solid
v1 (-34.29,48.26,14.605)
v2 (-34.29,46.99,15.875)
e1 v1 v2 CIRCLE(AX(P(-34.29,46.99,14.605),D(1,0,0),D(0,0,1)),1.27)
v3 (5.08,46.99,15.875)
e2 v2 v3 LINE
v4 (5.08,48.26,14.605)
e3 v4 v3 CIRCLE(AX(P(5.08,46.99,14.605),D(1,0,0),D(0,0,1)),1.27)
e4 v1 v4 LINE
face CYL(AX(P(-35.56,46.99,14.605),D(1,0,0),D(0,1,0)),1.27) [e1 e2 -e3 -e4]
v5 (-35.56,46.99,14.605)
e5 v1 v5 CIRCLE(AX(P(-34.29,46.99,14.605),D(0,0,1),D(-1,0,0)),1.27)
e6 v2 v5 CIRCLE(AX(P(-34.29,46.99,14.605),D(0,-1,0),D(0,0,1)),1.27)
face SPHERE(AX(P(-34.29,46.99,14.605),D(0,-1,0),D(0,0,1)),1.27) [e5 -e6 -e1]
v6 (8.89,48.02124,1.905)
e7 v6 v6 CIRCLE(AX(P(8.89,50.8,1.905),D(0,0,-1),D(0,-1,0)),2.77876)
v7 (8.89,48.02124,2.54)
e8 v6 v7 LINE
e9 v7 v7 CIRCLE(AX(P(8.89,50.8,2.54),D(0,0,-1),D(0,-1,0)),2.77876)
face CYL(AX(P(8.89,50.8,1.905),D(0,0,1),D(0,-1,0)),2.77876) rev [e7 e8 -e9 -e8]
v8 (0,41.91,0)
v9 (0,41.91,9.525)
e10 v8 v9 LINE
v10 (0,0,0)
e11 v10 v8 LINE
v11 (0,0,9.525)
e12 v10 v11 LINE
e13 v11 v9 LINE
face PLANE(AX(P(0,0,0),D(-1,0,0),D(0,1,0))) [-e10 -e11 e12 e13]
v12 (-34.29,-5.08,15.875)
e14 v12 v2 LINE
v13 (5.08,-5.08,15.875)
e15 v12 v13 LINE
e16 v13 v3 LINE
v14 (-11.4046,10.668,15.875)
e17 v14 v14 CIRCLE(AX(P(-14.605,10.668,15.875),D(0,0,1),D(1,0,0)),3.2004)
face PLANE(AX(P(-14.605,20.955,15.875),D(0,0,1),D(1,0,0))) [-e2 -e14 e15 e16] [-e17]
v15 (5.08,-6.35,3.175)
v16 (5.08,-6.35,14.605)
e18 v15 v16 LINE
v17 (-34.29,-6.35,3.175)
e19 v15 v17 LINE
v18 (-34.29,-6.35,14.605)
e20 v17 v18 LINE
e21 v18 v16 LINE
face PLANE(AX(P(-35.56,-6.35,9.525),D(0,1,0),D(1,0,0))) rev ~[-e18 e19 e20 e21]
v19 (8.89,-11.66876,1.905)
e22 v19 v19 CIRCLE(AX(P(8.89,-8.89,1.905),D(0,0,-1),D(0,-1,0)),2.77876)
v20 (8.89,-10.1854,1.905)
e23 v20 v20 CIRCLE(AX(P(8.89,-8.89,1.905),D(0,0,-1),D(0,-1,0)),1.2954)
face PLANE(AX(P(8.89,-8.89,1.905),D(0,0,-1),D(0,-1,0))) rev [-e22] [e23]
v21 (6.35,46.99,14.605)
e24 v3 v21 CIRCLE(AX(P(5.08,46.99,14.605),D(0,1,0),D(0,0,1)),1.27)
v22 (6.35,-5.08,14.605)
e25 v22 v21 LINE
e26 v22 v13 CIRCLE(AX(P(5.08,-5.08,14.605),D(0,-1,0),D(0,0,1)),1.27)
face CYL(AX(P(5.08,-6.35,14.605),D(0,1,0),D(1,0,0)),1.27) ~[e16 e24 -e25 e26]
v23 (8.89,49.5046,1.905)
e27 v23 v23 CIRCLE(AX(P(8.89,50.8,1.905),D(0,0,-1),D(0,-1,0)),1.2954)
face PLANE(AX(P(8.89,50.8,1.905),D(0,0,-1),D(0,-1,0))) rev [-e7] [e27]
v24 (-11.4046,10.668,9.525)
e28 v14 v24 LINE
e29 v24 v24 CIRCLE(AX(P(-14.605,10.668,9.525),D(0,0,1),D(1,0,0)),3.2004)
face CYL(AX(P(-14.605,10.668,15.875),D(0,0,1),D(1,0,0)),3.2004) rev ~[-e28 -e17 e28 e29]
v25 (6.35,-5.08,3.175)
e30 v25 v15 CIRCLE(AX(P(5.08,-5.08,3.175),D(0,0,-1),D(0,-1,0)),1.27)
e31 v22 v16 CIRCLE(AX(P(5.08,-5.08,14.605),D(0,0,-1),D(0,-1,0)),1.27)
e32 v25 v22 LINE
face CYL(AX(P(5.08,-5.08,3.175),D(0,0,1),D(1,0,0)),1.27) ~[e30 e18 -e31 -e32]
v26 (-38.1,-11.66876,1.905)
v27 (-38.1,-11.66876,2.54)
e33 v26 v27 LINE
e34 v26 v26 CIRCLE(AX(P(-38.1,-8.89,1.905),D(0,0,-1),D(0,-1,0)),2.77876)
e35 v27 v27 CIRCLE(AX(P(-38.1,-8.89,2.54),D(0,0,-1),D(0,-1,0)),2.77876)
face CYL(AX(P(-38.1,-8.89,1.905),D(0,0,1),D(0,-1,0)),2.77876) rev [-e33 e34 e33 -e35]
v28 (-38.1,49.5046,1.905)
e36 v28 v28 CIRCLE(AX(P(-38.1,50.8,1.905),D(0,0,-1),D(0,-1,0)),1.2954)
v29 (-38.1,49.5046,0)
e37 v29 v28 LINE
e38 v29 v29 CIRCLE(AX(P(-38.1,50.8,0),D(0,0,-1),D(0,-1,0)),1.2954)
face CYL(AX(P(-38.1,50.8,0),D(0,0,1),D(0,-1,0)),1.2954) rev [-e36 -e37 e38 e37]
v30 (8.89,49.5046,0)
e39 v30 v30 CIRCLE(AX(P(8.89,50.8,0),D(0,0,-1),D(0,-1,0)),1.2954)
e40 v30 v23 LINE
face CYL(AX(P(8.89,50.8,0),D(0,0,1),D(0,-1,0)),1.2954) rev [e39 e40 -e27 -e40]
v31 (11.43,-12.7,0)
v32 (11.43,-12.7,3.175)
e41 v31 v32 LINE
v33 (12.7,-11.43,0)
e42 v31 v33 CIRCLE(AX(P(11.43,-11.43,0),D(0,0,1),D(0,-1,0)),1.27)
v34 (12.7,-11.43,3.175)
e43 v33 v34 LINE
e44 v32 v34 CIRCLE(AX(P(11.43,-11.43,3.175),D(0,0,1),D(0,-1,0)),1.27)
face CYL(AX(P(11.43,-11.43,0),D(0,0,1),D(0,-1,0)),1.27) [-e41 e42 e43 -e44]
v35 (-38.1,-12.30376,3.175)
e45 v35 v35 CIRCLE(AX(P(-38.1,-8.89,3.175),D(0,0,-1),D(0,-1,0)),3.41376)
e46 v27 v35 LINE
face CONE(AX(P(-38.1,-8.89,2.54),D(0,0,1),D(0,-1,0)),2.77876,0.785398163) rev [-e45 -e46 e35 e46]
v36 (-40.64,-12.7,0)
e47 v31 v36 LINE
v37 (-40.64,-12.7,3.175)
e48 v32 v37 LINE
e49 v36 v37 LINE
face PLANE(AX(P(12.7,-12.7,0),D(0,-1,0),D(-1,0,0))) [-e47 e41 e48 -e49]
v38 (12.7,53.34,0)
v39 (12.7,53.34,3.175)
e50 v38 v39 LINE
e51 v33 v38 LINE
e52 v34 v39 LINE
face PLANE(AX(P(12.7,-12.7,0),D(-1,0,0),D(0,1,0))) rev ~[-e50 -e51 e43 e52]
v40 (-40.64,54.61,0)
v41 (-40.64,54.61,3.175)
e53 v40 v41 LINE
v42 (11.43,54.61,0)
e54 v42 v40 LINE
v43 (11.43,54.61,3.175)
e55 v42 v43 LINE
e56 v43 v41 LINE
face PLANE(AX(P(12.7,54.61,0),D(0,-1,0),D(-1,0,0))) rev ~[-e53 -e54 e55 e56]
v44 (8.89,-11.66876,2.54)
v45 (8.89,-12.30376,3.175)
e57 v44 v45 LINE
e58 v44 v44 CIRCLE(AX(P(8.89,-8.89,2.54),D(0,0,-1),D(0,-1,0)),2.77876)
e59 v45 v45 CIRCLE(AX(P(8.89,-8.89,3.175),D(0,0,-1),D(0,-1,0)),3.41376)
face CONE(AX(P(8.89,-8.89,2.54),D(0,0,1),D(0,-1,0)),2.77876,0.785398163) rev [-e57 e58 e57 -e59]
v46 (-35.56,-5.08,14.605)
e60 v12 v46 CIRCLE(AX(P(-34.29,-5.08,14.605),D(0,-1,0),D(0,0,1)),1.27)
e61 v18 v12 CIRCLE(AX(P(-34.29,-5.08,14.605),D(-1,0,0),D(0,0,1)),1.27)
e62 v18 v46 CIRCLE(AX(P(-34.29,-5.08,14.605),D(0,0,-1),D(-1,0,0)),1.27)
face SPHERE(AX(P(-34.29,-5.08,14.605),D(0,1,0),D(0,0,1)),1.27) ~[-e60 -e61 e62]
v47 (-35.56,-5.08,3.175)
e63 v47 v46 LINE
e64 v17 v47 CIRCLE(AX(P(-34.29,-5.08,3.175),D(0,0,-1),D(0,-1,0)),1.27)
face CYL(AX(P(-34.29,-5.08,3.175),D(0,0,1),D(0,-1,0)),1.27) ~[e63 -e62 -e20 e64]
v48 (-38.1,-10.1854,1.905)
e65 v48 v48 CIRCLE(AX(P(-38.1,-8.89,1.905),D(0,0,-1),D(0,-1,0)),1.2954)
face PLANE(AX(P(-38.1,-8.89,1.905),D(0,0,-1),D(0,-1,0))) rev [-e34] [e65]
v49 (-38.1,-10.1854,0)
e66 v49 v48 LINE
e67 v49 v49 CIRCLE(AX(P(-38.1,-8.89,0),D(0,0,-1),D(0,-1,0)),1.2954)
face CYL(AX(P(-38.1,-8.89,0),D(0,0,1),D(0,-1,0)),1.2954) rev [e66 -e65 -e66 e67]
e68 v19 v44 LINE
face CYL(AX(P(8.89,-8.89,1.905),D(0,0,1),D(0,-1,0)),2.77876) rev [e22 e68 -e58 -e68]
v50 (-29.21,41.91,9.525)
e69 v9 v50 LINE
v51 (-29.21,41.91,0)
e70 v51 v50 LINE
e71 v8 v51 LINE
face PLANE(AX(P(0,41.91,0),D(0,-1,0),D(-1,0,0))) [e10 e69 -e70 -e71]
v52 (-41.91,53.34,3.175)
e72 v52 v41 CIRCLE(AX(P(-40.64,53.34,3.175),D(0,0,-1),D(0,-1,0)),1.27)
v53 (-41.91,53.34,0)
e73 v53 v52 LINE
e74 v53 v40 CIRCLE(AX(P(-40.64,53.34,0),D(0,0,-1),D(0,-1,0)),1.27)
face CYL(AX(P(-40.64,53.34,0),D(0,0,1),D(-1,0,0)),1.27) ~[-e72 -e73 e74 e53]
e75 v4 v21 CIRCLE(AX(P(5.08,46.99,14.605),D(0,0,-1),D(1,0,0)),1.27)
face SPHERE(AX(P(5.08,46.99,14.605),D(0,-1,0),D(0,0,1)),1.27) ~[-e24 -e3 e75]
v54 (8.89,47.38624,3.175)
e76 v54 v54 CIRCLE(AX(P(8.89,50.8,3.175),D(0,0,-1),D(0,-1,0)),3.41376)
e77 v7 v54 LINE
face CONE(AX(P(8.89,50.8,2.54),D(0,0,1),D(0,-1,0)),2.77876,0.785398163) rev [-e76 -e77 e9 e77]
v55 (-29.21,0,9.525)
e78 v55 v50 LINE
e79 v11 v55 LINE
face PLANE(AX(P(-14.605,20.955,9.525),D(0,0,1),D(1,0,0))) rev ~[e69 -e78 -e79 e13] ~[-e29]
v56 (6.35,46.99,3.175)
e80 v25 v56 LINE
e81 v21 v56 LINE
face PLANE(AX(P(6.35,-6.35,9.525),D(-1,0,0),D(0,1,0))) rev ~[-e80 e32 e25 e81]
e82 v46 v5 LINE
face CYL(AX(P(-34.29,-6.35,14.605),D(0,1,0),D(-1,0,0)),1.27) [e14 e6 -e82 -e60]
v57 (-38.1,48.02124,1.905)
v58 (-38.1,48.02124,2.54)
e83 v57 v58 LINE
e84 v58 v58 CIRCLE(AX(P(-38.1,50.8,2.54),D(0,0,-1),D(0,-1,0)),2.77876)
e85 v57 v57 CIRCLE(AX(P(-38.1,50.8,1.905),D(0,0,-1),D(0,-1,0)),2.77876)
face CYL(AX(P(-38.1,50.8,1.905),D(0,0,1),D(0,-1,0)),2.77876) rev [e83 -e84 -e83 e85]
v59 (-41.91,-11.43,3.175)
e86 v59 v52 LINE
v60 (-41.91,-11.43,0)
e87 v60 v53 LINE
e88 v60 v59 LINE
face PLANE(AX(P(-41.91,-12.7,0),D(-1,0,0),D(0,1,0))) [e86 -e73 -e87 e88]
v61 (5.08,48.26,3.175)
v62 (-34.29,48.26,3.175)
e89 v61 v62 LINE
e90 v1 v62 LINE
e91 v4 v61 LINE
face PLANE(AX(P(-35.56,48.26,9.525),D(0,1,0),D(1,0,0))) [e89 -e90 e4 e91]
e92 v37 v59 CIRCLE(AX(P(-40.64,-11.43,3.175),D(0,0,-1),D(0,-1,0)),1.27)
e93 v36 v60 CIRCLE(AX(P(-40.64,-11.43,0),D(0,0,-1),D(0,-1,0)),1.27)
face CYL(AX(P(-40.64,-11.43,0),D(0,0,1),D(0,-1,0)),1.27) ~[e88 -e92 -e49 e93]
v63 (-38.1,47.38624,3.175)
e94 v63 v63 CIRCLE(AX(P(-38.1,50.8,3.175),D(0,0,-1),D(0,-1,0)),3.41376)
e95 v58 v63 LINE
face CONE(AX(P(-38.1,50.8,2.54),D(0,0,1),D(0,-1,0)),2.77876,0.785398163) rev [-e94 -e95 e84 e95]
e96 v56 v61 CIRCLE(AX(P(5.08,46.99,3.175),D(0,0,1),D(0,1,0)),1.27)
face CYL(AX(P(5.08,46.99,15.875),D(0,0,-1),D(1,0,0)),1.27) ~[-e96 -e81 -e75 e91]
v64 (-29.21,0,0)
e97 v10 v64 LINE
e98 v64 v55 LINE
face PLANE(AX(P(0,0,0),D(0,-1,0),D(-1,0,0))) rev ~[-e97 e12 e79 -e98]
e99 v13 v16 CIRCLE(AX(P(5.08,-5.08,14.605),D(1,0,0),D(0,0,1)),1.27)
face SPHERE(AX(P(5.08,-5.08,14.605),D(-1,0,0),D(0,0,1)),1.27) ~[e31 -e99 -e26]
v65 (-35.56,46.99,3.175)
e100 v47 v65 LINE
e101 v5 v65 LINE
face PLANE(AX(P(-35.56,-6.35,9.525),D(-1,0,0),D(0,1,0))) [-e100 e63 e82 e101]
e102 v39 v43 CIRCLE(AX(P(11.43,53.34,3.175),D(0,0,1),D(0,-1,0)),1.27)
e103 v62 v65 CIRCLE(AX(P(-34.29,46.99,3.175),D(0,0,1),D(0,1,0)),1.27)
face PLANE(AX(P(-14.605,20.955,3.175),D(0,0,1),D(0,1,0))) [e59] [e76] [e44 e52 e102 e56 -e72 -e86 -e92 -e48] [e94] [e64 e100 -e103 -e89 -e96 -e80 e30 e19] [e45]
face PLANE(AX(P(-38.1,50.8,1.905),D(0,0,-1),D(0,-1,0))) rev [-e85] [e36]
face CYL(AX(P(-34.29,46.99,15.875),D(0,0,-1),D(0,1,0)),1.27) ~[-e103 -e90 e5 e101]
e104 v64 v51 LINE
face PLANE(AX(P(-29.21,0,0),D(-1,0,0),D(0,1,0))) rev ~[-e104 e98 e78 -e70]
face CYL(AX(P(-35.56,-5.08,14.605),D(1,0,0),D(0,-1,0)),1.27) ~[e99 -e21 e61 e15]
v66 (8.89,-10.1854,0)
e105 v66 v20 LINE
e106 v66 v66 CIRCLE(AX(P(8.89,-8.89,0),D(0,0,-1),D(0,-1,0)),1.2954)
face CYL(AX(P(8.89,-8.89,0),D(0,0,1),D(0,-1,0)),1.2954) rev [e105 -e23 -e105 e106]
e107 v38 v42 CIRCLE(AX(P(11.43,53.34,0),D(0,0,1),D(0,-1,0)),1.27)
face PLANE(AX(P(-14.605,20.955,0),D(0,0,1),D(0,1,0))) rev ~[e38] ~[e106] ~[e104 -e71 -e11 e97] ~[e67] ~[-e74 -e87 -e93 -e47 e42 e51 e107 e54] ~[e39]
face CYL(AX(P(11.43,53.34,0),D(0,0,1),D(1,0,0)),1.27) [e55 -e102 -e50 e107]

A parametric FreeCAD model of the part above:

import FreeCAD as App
import Part
import Sketcher
Q = App.Units.Quantity


def edges_at(feature, points):
    """Names of the edges that pass closest to the given points."""
    edges = feature.Shape.Edges
    near = lambda p: min(range(len(edges)), key=lambda i: edges[i].distToShape(Part.Vertex(*p))[0])
    return sorted({f"Edge{near(p) + 1}" for p in points})


def add_polygon(sketch, points):
    """Adds a closed chain of lines whose ends are joined by coincident constraints."""
    first, n = sketch.GeometryCount, len(points)
    for a, b in zip(points, points[1:] + points[:1]):
        sketch.addGeometry(Part.LineSegment(App.Vector(*a, 0), App.Vector(*b, 0)), False)
    for i in range(n):
        sketch.addConstraint(Sketcher.Constraint("Coincident", first + i, 2, first + (i + 1) % n, 1))

doc = App.newDocument("Part")
body = doc.addObject("PartDesign::Body", "Body")

# Sketch on XY plane
sketch1 = body.newObject("Sketcher::SketchObject", "Sketch")
sketch1.AttachmentSupport = (doc.getObject("XY_Plane"), [""])
sketch1.MapMode = "FlatFace"
add_polygon(sketch1, [(-36, -6), (6, -6), (6, 48), (-36, 48)])  # lines 0-3
add_polygon(sketch1, [(0, 42), (0, 0), (-29, 0), (-29, 42)])  # lines 4-7
sketch1.addConstraint([
    Sketcher.Constraint("Horizontal", 0),
    Sketcher.Constraint("Vertical", 1),
    Sketcher.Constraint("Horizontal", 2),
    Sketcher.Constraint("Vertical", 3),
    Sketcher.Constraint("Vertical", 4),
    Sketcher.Constraint("Horizontal", 5),
    Sketcher.Constraint("Vertical", 6),
    Sketcher.Constraint("Horizontal", 7),
    Sketcher.Constraint("Coincident", 4, 2, -1, 1),
    Sketcher.Constraint("Equal", 2, 4),
    Sketcher.Constraint("DistanceX", 0, 1, 0, 2, Q("1.65 in")),
    Sketcher.Constraint("DistanceX", 5, 2, 5, 1, Q("1.15 in")),
    Sketcher.Constraint("DistanceY", 1, 1, 1, 2, Q("2.15 in")),
    Sketcher.Constraint("DistanceY", -1, 1, 1, 2, Q("1.9 in")),
    Sketcher.Constraint("DistanceX", 2, 2, -1, 1, Q("1.4 in")),
])
pad1 = body.newObject("PartDesign::Pad", "Pad")
pad1.Profile = sketch1
pad1.Length = Q("0.375 in")

# Sketch on XY plane
sketch2 = body.newObject("Sketcher::SketchObject", "Sketch001")
sketch2.AttachmentSupport = (doc.getObject("XY_Plane"), [""])
sketch2.MapMode = "FlatFace"
sketch2.AttachmentOffset = App.Placement(App.Vector(0, 0, 0.375 * 25.4), App.Rotation())
add_polygon(sketch2, [(-36, 48), (-36, -6), (6, -6), (6, 48)])  # lines 0-3
sketch2.addConstraint([
    Sketcher.Constraint("Vertical", 0),
    Sketcher.Constraint("Horizontal", 1),
    Sketcher.Constraint("Vertical", 2),
    Sketcher.Constraint("Horizontal", 3),
    Sketcher.Constraint("DistanceX", 1, 1, 1, 2, Q("1.65 in")),
    Sketcher.Constraint("DistanceY", 0, 2, 0, 1, Q("2.15 in")),
    Sketcher.Constraint("DistanceX", 0, 2, -1, 1, Q("1.4 in")),
    Sketcher.Constraint("DistanceY", -1, 1, 2, 2, Q("1.9 in")),
])
pad2 = body.newObject("PartDesign::Pad", "Pad001")
pad2.Profile = sketch2
pad2.Length = Q("0.25 in")

# Sketch on XY plane
sketch3 = body.newObject("Sketcher::SketchObject", "Sketch002")
sketch3.AttachmentSupport = (doc.getObject("XY_Plane"), [""])
sketch3.MapMode = "FlatFace"
sketch3.AttachmentOffset = App.Placement(App.Vector(0, 0, 0.625 * 25.4), App.Rotation())
sketch3.addGeometry(Part.Circle(App.Vector(-14.6, 10.7, 0), App.Vector(0, 0, 1), 3.2), False)
sketch3.addConstraint([
    Sketcher.Constraint("Diameter", 0, Q("0.252 in")),
    Sketcher.Constraint("DistanceY", -1, 1, 0, 3, Q("0.42 in")),
    Sketcher.Constraint("DistanceX", 0, 3, -1, 1, Q("0.575 in")),
])
pocket1 = body.newObject("PartDesign::Pocket", "Pocket")
pocket1.Profile = sketch3
pocket1.Type = "ThroughAll"

# Sketch on XY plane
sketch4 = body.newObject("Sketcher::SketchObject", "Sketch003")
sketch4.AttachmentSupport = (doc.getObject("XY_Plane"), [""])
sketch4.MapMode = "FlatFace"
add_polygon(sketch4, [(-42, -13), (13, -13), (13, 55), (-42, 55)])  # lines 0-3
add_polygon(sketch4, [(6, 48), (6, -6), (-36, -6), (-36, 48)])  # lines 4-7
sketch4.addConstraint([
    Sketcher.Constraint("Horizontal", 0),
    Sketcher.Constraint("Vertical", 1),
    Sketcher.Constraint("Horizontal", 2),
    Sketcher.Constraint("Vertical", 3),
    Sketcher.Constraint("Vertical", 4),
    Sketcher.Constraint("Horizontal", 5),
    Sketcher.Constraint("Vertical", 6),
    Sketcher.Constraint("Horizontal", 7),
    Sketcher.Constraint("Equal", 2, 4),
    Sketcher.Constraint("DistanceX", 0, 1, 0, 2, Q("2.15 in")),
    Sketcher.Constraint("DistanceX", 5, 2, 5, 1, Q("1.65 in")),
    Sketcher.Constraint("DistanceY", 1, 1, 1, 2, Q("2.65 in")),
    Sketcher.Constraint("DistanceX", -1, 1, 0, 2, Q("0.5 in")),
    Sketcher.Constraint("DistanceY", 0, 2, -1, 1, Q("0.5 in")),
    Sketcher.Constraint("DistanceX", 5, 2, -1, 1, Q("1.4 in")),
    Sketcher.Constraint("DistanceY", -1, 1, 6, 2, Q("1.9 in")),
])
pad3 = body.newObject("PartDesign::Pad", "Pad002")
pad3.Profile = sketch4
pad3.Length = Q("0.125 in")

# Sketch on YZ plane
sketch5 = body.newObject("Sketcher::SketchObject", "Sketch004")
sketch5.AttachmentSupport = (doc.getObject("YZ_Plane"), [""])
sketch5.MapMode = "FlatFace"
sketch5.AttachmentOffset = App.Placement(App.Vector(0, 0, -1.5 * 25.4), App.Rotation())
add_polygon(sketch5, [(50.8, 0), (50.8, 3.2), (47.4, 3.2), (48, 2.5), (48, 1.9), (49.5, 1.9), (49.5, 0)])  # lines 0-6
sketch5.addGeometry(Part.LineSegment(App.Vector(50.8, 3.2, 0), App.Vector(50.8, 0, 0)), True)  # axis
sketch5.addConstraint([
    Sketcher.Constraint("Vertical", 0),
    Sketcher.Constraint("Horizontal", 1),
    Sketcher.Constraint("Vertical", 3),
    Sketcher.Constraint("Horizontal", 4),
    Sketcher.Constraint("Vertical", 5),
    Sketcher.Constraint("Horizontal", 6),
    Sketcher.Constraint("Vertical", 7),
    Sketcher.Constraint("Coincident", 7, 1, 0, 2),
    Sketcher.Constraint("PointOnObject", 5, 2, -1),
    Sketcher.Constraint("PointOnObject", 7, 2, -1),
    Sketcher.Constraint("DistanceX", -1, 1, 0, 2, Q("2 in")),
    Sketcher.Constraint("Angle", 2, Q("-45 deg")),
    Sketcher.Constraint("DistanceY", -1, 1, 2, 2, Q("0.1 in")),
    Sketcher.Constraint("DistanceX", 6, 1, 6, 2, Q("0.051 in")),
    Sketcher.Constraint("DistanceY", 0, 1, 0, 2, Q("0.125 in")),
    Sketcher.Constraint("DistanceY", 3, 2, 3, 1, Q("0.025 in")),
    Sketcher.Constraint("DistanceX", 1, 2, 1, 1, Q("0.1344 in")),
])
groove = body.newObject("PartDesign::Groove", "Groove")
groove.Profile = sketch5
groove.ReferenceAxis = (sketch5, ["Axis0"])
groove.Angle = 360
doc.recompute()

linearpattern = body.newObject("PartDesign::LinearPattern", "LinearPattern")
linearpattern.Originals = [groove]
linearpattern.Direction = (doc.getObject("X_Axis"), [""])
linearpattern.Mode = "offset"
linearpattern.Offset = Q("1.85 in")
linearpattern.Occurrences = 2
body.Tip = linearpattern
doc.recompute()

datumline = body.newObject("PartDesign::Line", "DatumLine")
datumline.Placement = App.Placement(App.Vector(0, 0, 0), App.Rotation(App.Vector(0, 0, 1), App.Vector(0.618559606, -0.785737878, 0)))
linearpattern2 = body.newObject("PartDesign::LinearPattern", "LinearPattern001")
linearpattern2.Originals = [groove]
linearpattern2.Direction = (datumline, [""])
linearpattern2.Mode = "offset"
linearpattern2.Offset = 75.96681
linearpattern2.Occurrences = 2
body.Tip = linearpattern2
doc.recompute()

linearpattern3 = body.newObject("PartDesign::LinearPattern", "LinearPattern002")
linearpattern3.Originals = [groove]
linearpattern3.Direction = (doc.getObject("Y_Axis"), [""])
linearpattern3.Mode = "offset"
linearpattern3.Offset = Q("2.35 in")
linearpattern3.Occurrences = 2
linearpattern3.Reversed = True
body.Tip = linearpattern3
doc.recompute()

fillet = body.newObject("PartDesign::Fillet", "Fillet")
fillet.Base = (linearpattern3, edges_at(linearpattern3, [
    (-35.56, 20.955, 15.875),
    (-14.605, -6.35, 15.875),
    (6.35, 20.955, 15.875),
    (-14.605, 48.26, 15.875),
    (-41.91, -12.7, 1.587),
    (12.7, -12.7, 1.587),
    (12.7, 54.61, 1.587),
    (-41.91, 54.61, 1.587),
    (-35.56, -6.35, 9.525),
    (-35.56, 48.26, 9.525),
    (6.35, 48.26, 9.525),
    (6.35, -6.35, 9.525),
]))
fillet.Radius = Q("0.05 in")

doc.recompute()
